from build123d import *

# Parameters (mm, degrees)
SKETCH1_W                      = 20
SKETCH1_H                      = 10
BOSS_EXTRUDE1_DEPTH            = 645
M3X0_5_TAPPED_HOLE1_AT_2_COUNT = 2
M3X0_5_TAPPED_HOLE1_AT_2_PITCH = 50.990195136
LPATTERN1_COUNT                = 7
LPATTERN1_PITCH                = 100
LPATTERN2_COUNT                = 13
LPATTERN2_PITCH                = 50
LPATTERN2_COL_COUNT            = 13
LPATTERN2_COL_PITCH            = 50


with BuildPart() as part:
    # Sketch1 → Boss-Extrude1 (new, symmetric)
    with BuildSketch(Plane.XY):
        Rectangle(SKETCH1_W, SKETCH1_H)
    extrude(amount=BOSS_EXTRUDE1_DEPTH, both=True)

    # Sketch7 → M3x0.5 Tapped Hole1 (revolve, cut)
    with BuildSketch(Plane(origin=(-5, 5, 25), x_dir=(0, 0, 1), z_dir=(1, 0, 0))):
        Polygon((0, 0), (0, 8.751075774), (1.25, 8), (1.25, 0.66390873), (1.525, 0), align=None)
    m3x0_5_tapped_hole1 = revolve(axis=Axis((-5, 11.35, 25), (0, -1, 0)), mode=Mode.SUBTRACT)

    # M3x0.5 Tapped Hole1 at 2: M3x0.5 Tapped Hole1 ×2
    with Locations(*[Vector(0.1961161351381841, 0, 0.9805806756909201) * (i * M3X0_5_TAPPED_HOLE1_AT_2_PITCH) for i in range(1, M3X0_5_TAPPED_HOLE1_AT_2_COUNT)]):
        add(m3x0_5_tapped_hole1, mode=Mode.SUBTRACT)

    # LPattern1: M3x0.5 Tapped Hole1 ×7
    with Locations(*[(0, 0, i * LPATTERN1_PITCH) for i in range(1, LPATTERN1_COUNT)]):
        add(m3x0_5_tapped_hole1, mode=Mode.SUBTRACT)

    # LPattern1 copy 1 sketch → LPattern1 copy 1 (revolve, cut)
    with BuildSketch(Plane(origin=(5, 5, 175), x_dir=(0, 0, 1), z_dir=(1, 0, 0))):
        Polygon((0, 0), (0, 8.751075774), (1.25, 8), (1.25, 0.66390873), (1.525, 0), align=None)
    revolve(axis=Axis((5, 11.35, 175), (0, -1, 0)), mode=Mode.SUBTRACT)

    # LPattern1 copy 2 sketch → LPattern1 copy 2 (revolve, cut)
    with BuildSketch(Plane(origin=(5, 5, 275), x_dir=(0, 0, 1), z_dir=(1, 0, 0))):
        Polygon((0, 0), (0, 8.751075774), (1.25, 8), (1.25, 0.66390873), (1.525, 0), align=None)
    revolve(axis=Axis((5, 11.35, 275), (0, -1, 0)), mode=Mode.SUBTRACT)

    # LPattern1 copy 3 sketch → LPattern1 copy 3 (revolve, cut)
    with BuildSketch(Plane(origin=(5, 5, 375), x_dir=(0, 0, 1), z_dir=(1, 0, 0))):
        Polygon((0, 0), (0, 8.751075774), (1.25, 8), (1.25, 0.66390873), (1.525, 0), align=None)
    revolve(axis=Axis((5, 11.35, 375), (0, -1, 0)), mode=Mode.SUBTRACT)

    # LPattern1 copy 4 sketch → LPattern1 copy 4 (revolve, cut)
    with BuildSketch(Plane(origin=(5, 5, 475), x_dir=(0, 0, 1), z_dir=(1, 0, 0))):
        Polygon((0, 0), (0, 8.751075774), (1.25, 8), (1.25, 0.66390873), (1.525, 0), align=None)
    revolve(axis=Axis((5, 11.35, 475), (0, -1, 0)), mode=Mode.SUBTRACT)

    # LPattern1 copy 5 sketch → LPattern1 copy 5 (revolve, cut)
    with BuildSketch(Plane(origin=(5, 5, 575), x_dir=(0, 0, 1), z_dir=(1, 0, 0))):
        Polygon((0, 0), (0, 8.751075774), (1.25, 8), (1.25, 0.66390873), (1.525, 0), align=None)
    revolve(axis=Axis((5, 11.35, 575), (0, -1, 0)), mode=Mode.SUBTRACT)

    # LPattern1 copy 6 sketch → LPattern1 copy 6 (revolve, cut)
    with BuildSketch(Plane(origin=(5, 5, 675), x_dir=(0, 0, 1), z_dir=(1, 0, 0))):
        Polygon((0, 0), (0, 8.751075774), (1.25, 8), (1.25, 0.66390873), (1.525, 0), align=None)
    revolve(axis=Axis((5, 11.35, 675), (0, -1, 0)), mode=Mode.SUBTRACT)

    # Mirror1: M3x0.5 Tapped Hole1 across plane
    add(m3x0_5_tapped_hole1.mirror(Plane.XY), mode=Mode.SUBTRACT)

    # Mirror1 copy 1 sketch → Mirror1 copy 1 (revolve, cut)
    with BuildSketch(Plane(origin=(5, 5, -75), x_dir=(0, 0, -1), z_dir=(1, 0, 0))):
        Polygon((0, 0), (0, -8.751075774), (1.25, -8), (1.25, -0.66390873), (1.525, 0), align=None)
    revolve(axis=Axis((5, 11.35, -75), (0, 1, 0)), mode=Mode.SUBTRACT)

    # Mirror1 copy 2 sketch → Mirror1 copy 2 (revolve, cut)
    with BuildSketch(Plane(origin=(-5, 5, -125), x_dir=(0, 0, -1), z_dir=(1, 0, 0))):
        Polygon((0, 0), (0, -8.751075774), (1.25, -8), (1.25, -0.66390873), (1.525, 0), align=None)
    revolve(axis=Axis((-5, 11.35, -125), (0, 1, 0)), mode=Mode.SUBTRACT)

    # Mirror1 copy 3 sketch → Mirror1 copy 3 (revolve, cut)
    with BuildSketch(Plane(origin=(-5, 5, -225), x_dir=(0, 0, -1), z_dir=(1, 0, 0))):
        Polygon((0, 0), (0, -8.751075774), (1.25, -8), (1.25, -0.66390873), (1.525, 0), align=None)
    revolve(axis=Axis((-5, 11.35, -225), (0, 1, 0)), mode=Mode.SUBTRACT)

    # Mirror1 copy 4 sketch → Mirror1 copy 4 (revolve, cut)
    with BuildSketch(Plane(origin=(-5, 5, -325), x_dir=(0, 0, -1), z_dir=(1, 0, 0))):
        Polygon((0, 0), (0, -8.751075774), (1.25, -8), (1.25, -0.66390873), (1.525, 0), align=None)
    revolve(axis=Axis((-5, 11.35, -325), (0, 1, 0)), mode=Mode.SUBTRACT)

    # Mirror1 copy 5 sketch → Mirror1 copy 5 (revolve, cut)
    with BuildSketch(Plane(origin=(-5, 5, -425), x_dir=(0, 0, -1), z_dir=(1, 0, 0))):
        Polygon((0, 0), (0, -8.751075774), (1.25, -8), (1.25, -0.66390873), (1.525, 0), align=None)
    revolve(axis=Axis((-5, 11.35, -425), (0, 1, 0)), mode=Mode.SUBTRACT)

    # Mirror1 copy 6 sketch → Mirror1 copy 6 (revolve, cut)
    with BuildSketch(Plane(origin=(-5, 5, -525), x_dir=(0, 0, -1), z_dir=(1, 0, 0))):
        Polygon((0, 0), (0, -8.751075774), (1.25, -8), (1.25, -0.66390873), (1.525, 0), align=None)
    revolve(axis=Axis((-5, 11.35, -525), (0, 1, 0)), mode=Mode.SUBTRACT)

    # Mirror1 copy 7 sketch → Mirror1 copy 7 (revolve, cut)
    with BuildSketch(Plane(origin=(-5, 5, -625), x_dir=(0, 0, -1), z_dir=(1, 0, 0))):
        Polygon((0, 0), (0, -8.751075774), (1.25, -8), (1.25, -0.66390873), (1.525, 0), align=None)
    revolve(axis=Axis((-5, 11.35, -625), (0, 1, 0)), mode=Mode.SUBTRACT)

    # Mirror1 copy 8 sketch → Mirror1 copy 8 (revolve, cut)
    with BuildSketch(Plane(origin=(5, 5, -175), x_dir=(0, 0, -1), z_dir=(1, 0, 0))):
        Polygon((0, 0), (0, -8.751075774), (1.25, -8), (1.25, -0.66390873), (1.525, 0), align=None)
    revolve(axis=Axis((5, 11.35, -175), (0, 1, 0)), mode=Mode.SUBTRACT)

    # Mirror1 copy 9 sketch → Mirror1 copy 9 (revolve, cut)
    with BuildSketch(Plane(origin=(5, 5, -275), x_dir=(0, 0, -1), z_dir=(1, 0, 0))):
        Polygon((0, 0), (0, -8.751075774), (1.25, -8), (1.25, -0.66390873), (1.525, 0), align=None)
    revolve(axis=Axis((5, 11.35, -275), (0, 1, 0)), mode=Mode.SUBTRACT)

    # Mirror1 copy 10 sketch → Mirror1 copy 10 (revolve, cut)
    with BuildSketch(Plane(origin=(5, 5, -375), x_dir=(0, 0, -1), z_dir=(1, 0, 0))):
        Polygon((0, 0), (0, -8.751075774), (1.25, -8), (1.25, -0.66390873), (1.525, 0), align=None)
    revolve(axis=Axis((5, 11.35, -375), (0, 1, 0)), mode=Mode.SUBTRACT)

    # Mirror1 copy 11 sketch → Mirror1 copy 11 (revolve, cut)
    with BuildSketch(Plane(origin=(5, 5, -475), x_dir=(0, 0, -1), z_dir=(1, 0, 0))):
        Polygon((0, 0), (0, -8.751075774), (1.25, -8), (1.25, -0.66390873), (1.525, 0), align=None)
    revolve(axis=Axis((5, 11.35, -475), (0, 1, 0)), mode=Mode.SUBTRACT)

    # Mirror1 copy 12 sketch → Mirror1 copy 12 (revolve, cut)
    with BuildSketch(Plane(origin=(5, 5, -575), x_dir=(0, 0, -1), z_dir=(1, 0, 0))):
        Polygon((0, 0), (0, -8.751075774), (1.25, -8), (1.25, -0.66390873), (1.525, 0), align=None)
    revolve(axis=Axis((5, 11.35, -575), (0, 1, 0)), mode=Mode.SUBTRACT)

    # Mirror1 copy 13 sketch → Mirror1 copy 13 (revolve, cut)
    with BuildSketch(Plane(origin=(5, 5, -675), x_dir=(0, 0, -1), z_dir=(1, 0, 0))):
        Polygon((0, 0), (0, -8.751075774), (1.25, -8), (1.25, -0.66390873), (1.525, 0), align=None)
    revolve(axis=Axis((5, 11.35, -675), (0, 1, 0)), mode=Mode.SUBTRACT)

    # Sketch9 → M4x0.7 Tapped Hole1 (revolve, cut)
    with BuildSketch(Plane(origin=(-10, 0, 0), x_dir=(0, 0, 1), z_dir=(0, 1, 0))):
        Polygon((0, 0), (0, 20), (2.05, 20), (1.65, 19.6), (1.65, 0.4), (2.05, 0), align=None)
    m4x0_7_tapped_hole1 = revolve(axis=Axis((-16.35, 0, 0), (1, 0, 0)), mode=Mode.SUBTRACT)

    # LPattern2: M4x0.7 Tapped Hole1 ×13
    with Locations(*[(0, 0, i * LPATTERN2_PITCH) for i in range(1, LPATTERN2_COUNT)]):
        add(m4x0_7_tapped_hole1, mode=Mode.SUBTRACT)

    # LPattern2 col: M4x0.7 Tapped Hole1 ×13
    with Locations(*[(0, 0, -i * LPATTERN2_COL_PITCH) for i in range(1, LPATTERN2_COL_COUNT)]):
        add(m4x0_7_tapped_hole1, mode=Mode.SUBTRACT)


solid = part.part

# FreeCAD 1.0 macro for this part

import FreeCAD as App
import Part
import Sketcher
Q = App.Units.Quantity

doc = App.newDocument("Part")
params = doc.addObject("Spreadsheet::Sheet", "Params")
for row, (alias, value) in enumerate([
    ("sketch1_width", "20 mm"),
    ("sketch1_height", "10 mm"),
    ("pad1_length", "1290 mm"),
    ("groove_angle", "360 deg"),
    ("linearpattern_pitch", "50.990195 mm"),
    ("linearpattern2_pitch", "100 mm"),
    ("groove2_angle", "360 deg"),
    ("groove3_angle", "360 deg"),
    ("groove4_angle", "360 deg"),
    ("groove5_angle", "360 deg"),
    ("groove6_angle", "360 deg"),
    ("groove7_angle", "360 deg"),
    ("groove8_angle", "360 deg"),
    ("groove9_angle", "360 deg"),
    ("groove10_angle", "360 deg"),
    ("groove11_angle", "360 deg"),
    ("groove12_angle", "360 deg"),
    ("groove13_angle", "360 deg"),
    ("groove14_angle", "360 deg"),
    ("groove15_angle", "360 deg"),
    ("groove16_angle", "360 deg"),
    ("groove17_angle", "360 deg"),
    ("groove18_angle", "360 deg"),
    ("groove19_angle", "360 deg"),
    ("groove20_angle", "360 deg"),
    ("sketch22_width", "20 mm"),
    ("sketch22_width2", "19.2 mm"),
    ("sketch22_height", "2.05 mm"),
    ("groove21_angle", "360 deg"),
    ("linearpattern3_pitch", "50 mm"),
    ("linearpattern4_pitch", "50 mm"),
], start=1):
    params.set(f"A{row}", alias)
    params.set(f"B{row}", "=" + value)
    params.setAlias(f"B{row}", alias)

body = doc.addObject("PartDesign::Body", "Body")

sketch1 = body.newObject("Sketcher::SketchObject", "Sketch")
sketch1.AttachmentSupport = (doc.getObject("XY_Plane"), [""])
sketch1.MapMode = "FlatFace"
sketch1.addGeometry([
    Part.LineSegment(App.Vector(-10, 5, 0), App.Vector(-10, -5, 0)),
    Part.LineSegment(App.Vector(-10, -5, 0), App.Vector(10, -5, 0)),
    Part.LineSegment(App.Vector(10, -5, 0), App.Vector(10, 5, 0)),
    Part.LineSegment(App.Vector(10, 5, 0), App.Vector(-10, 5, 0)),
], False)
sketch1.addConstraint([
    Sketcher.Constraint("Coincident", 0, 2, 1, 1),
    Sketcher.Constraint("Coincident", 1, 2, 2, 1),
    Sketcher.Constraint("Coincident", 2, 2, 3, 1),
    Sketcher.Constraint("Coincident", 3, 2, 0, 1),
    Sketcher.Constraint("Vertical", 0),
    Sketcher.Constraint("Horizontal", 1),
    Sketcher.Constraint("Vertical", 2),
    Sketcher.Constraint("Horizontal", 3),
    Sketcher.Constraint("Symmetric", 0, 2, 2, 2, -1, 1),
    Sketcher.Constraint("DistanceX", 1, 1, 1, 2, Q("20 mm")),
    Sketcher.Constraint("DistanceY", 0, 2, 0, 1, Q("10 mm")),
])
sketch1.setExpression("Constraints[9]", "Params.sketch1_width")
sketch1.setExpression("Constraints[10]", "Params.sketch1_height")
pad1 = body.newObject("PartDesign::Pad", "Pad")
pad1.Profile = sketch1
pad1.setExpression("Length", "Params.pad1_length")
pad1.Midplane = True

sketch2 = body.newObject("Sketcher::SketchObject", "Sketch001")
sketch2.AttachmentSupport = (doc.getObject("YZ_Plane"), [""])
sketch2.MapMode = "FlatFace"
sketch2.AttachmentOffset = App.Placement(App.Vector(0, 0, -5), App.Rotation())
sketch2.addGeometry([
    Part.LineSegment(App.Vector(-3.8, 25, 0), App.Vector(5, 25, 0)),
    Part.LineSegment(App.Vector(5, 25, 0), App.Vector(5, 26.5, 0)),
    Part.LineSegment(App.Vector(5, 26.5, 0), App.Vector(4.3, 26.2, 0)),
    Part.LineSegment(App.Vector(4.3, 26.2, 0), App.Vector(-3, 26.2, 0)),
    Part.LineSegment(App.Vector(-3, 26.2, 0), App.Vector(-3.8, 25, 0)),
], False)
sketch2.addGeometry(Part.LineSegment(App.Vector(5, 25, 0), App.Vector(-3.8, 25, 0)), True)
sketch2.addConstraint([
    Sketcher.Constraint("Coincident", 0, 2, 1, 1),
    Sketcher.Constraint("Coincident", 1, 2, 2, 1),
    Sketcher.Constraint("Coincident", 2, 2, 3, 1),
    Sketcher.Constraint("Coincident", 3, 2, 4, 1),
    Sketcher.Constraint("Coincident", 4, 2, 0, 1),
    Sketcher.Constraint("Horizontal", 0),
    Sketcher.Constraint("Vertical", 1),
    Sketcher.Constraint("Horizontal", 3),
    Sketcher.Constraint("Horizontal", 5),
    Sketcher.Constraint("Coincident", 5, 1, 0, 2),
    Sketcher.Constraint("Equal", 0, 5),
    Sketcher.Constraint("Angle", 4, Q("-121 deg")),
    Sketcher.Constraint("DistanceX", -1, 1, 0, 2, Q("5 mm")),
    Sketcher.Constraint("DistanceY", -1, 1, 0, 2, Q("25 mm")),
    Sketcher.Constraint("DistanceX", 3, 2, -1, 1, Q("3 mm")),
    Sketcher.Constraint("Angle", 2, Q("-157.5 deg")),
    Sketcher.Constraint("DistanceY", 1, 1, 1, 2, Q("1.525 mm")),
    Sketcher.Constraint("DistanceY", -1, 1, 2, 2, Q("26.25 mm")),
])
groove = body.newObject("PartDesign::Groove", "Groove")
groove.Profile = sketch2
groove.ReferenceAxis = (sketch2, ["Axis0"])
groove.setExpression("Angle", "Params.groove_angle")
doc.recompute()

datumline = body.newObject("PartDesign::Line", "DatumLine")
datumline.Placement = App.Placement(App.Vector(0, 0, 0), App.Rotation(App.Vector(0, 0, 1), App.Vector(0.196116135, 0, 0.980580676)))
linearpattern = body.newObject("PartDesign::LinearPattern", "LinearPattern")
linearpattern.Originals = [groove]
linearpattern.Direction = (datumline, [""])
linearpattern.Mode = "offset"
linearpattern.setExpression("Offset", "Params.linearpattern_pitch")
linearpattern.Occurrences = 2
body.Tip = linearpattern
doc.recompute()

linearpattern2 = body.newObject("PartDesign::LinearPattern", "LinearPattern001")
linearpattern2.Originals = [groove]
linearpattern2.Direction = (doc.getObject("Z_Axis"), [""])
linearpattern2.Mode = "offset"
linearpattern2.setExpression("Offset", "Params.linearpattern2_pitch")
linearpattern2.Occurrences = 7
body.Tip = linearpattern2

sketch3 = body.newObject("Sketcher::SketchObject", "Sketch002")
sketch3.AttachmentSupport = (doc.getObject("YZ_Plane"), [""])
sketch3.MapMode = "FlatFace"
sketch3.AttachmentOffset = App.Placement(App.Vector(0, 0, 5), App.Rotation())
sketch3.addGeometry([
    Part.LineSegment(App.Vector(-3.8, 175, 0), App.Vector(5, 175, 0)),
    Part.LineSegment(App.Vector(5, 175, 0), App.Vector(5, 176.5, 0)),
    Part.LineSegment(App.Vector(5, 176.5, 0), App.Vector(4.3, 176.2, 0)),
    Part.LineSegment(App.Vector(4.3, 176.2, 0), App.Vector(-3, 176.2, 0)),
    Part.LineSegment(App.Vector(-3, 176.2, 0), App.Vector(-3.8, 175, 0)),
], False)
sketch3.addGeometry(Part.LineSegment(App.Vector(5, 175, 0), App.Vector(-3.8, 175, 0)), True)
sketch3.addConstraint([
    Sketcher.Constraint("Coincident", 0, 2, 1, 1),
    Sketcher.Constraint("Coincident", 1, 2, 2, 1),
    Sketcher.Constraint("Coincident", 2, 2, 3, 1),
    Sketcher.Constraint("Coincident", 3, 2, 4, 1),
    Sketcher.Constraint("Coincident", 4, 2, 0, 1),
    Sketcher.Constraint("Horizontal", 0),
    Sketcher.Constraint("Vertical", 1),
    Sketcher.Constraint("Horizontal", 3),
    Sketcher.Constraint("Horizontal", 5),
    Sketcher.Constraint("Coincident", 5, 1, 0, 2),
    Sketcher.Constraint("Equal", 0, 5),
    Sketcher.Constraint("Angle", 4, Q("-121 deg")),
    Sketcher.Constraint("DistanceX", -1, 1, 0, 2, Q("5 mm")),
    Sketcher.Constraint("DistanceY", -1, 1, 0, 2, Q("175 mm")),
    Sketcher.Constraint("DistanceX", 3, 2, -1, 1, Q("3 mm")),
    Sketcher.Constraint("Angle", 2, Q("-157.5 deg")),
    Sketcher.Constraint("DistanceY", 1, 1, 1, 2, Q("1.525 mm")),
    Sketcher.Constraint("DistanceY", -1, 1, 2, 2, Q("176.25 mm")),
])
groove2 = body.newObject("PartDesign::Groove", "Groove001")
groove2.Profile = sketch3
groove2.ReferenceAxis = (sketch3, ["Axis0"])
groove2.setExpression("Angle", "Params.groove2_angle")

sketch4 = body.newObject("Sketcher::SketchObject", "Sketch003")
sketch4.AttachmentSupport = (doc.getObject("YZ_Plane"), [""])
sketch4.MapMode = "FlatFace"
sketch4.AttachmentOffset = App.Placement(App.Vector(0, 0, 5), App.Rotation())
sketch4.addGeometry([
    Part.LineSegment(App.Vector(-3.8, 275, 0), App.Vector(5, 275, 0)),
    Part.LineSegment(App.Vector(5, 275, 0), App.Vector(5, 276.5, 0)),
    Part.LineSegment(App.Vector(5, 276.5, 0), App.Vector(4.3, 276.2, 0)),
    Part.LineSegment(App.Vector(4.3, 276.2, 0), App.Vector(-3, 276.2, 0)),
    Part.LineSegment(App.Vector(-3, 276.2, 0), App.Vector(-3.8, 275, 0)),
], False)
sketch4.addGeometry(Part.LineSegment(App.Vector(5, 275, 0), App.Vector(-3.8, 275, 0)), True)
sketch4.addConstraint([
    Sketcher.Constraint("Coincident", 0, 2, 1, 1),
    Sketcher.Constraint("Coincident", 1, 2, 2, 1),
    Sketcher.Constraint("Coincident", 2, 2, 3, 1),
    Sketcher.Constraint("Coincident", 3, 2, 4, 1),
    Sketcher.Constraint("Coincident", 4, 2, 0, 1),
    Sketcher.Constraint("Horizontal", 0),
    Sketcher.Constraint("Vertical", 1),
    Sketcher.Constraint("Horizontal", 3),
    Sketcher.Constraint("Horizontal", 5),
    Sketcher.Constraint("Coincident", 5, 1, 0, 2),
    Sketcher.Constraint("Equal", 0, 5),
    Sketcher.Constraint("Angle", 4, Q("-121 deg")),
    Sketcher.Constraint("DistanceX", -1, 1, 0, 2, Q("5 mm")),
    Sketcher.Constraint("DistanceY", -1, 1, 0, 2, Q("275 mm")),
    Sketcher.Constraint("DistanceX", 3, 2, -1, 1, Q("3 mm")),
    Sketcher.Constraint("Angle", 2, Q("-157.5 deg")),
    Sketcher.Constraint("DistanceY", 1, 1, 1, 2, Q("1.525 mm")),
    Sketcher.Constraint("DistanceY", -1, 1, 2, 2, Q("276.25 mm")),
])
groove3 = body.newObject("PartDesign::Groove", "Groove002")
groove3.Profile = sketch4
groove3.ReferenceAxis = (sketch4, ["Axis0"])
groove3.setExpression("Angle", "Params.groove3_angle")

sketch5 = body.newObject("Sketcher::SketchObject", "Sketch004")
sketch5.AttachmentSupport = (doc.getObject("YZ_Plane"), [""])
sketch5.MapMode = "FlatFace"
sketch5.AttachmentOffset = App.Placement(App.Vector(0, 0, 5), App.Rotation())
sketch5.addGeometry([
    Part.LineSegment(App.Vector(-3.8, 375, 0), App.Vector(5, 375, 0)),
    Part.LineSegment(App.Vector(5, 375, 0), App.Vector(5, 376.5, 0)),
    Part.LineSegment(App.Vector(5, 376.5, 0), App.Vector(4.3, 376.2, 0)),
    Part.LineSegment(App.Vector(4.3, 376.2, 0), App.Vector(-3, 376.2, 0)),
    Part.LineSegment(App.Vector(-3, 376.2, 0), App.Vector(-3.8, 375, 0)),
], False)
sketch5.addGeometry(Part.LineSegment(App.Vector(5, 375, 0), App.Vector(-3.8, 375, 0)), True)
sketch5.addConstraint([
    Sketcher.Constraint("Coincident", 0, 2, 1, 1),
    Sketcher.Constraint("Coincident", 1, 2, 2, 1),
    Sketcher.Constraint("Coincident", 2, 2, 3, 1),
    Sketcher.Constraint("Coincident", 3, 2, 4, 1),
    Sketcher.Constraint("Coincident", 4, 2, 0, 1),
    Sketcher.Constraint("Horizontal", 0),
    Sketcher.Constraint("Vertical", 1),
    Sketcher.Constraint("Horizontal", 3),
    Sketcher.Constraint("Horizontal", 5),
    Sketcher.Constraint("Coincident", 5, 1, 0, 2),
    Sketcher.Constraint("Equal", 0, 5),
    Sketcher.Constraint("Angle", 4, Q("-121 deg")),
    Sketcher.Constraint("DistanceX", -1, 1, 0, 2, Q("5 mm")),
    Sketcher.Constraint("DistanceY", -1, 1, 0, 2, Q("375 mm")),
    Sketcher.Constraint("DistanceX", 3, 2, -1, 1, Q("3 mm")),
    Sketcher.Constraint("Angle", 2, Q("-157.5 deg")),
    Sketcher.Constraint("DistanceY", 1, 1, 1, 2, Q("1.525 mm")),
    Sketcher.Constraint("DistanceY", -1, 1, 2, 2, Q("376.25 mm")),
])
groove4 = body.newObject("PartDesign::Groove", "Groove003")
groove4.Profile = sketch5
groove4.ReferenceAxis = (sketch5, ["Axis0"])
groove4.setExpression("Angle", "Params.groove4_angle")

sketch6 = body.newObject("Sketcher::SketchObject", "Sketch005")
sketch6.AttachmentSupport = (doc.getObject("YZ_Plane"), [""])
sketch6.MapMode = "FlatFace"
sketch6.AttachmentOffset = App.Placement(App.Vector(0, 0, 5), App.Rotation())
sketch6.addGeometry([
    Part.LineSegment(App.Vector(-3.8, 475, 0), App.Vector(5, 475, 0)),
    Part.LineSegment(App.Vector(5, 475, 0), App.Vector(5, 476.5, 0)),
    Part.LineSegment(App.Vector(5, 476.5, 0), App.Vector(4.3, 476.2, 0)),
    Part.LineSegment(App.Vector(4.3, 476.2, 0), App.Vector(-3, 476.2, 0)),
    Part.LineSegment(App.Vector(-3, 476.2, 0), App.Vector(-3.8, 475, 0)),
], False)
sketch6.addGeometry(Part.LineSegment(App.Vector(5, 475, 0), App.Vector(-3.8, 475, 0)), True)
sketch6.addConstraint([
    Sketcher.Constraint("Coincident", 0, 2, 1, 1),
    Sketcher.Constraint("Coincident", 1, 2, 2, 1),
    Sketcher.Constraint("Coincident", 2, 2, 3, 1),
    Sketcher.Constraint("Coincident", 3, 2, 4, 1),
    Sketcher.Constraint("Coincident", 4, 2, 0, 1),
    Sketcher.Constraint("Horizontal", 0),
    Sketcher.Constraint("Vertical", 1),
    Sketcher.Constraint("Horizontal", 3),
    Sketcher.Constraint("Horizontal", 5),
    Sketcher.Constraint("Coincident", 5, 1, 0, 2),
    Sketcher.Constraint("Equal", 0, 5),
    Sketcher.Constraint("Angle", 4, Q("-121 deg")),
    Sketcher.Constraint("DistanceX", -1, 1, 0, 2, Q("5 mm")),
    Sketcher.Constraint("DistanceY", -1, 1, 0, 2, Q("475 mm")),
    Sketcher.Constraint("DistanceX", 3, 2, -1, 1, Q("3 mm")),
    Sketcher.Constraint("Angle", 2, Q("-157.5 deg")),
    Sketcher.Constraint("DistanceY", 1, 1, 1, 2, Q("1.525 mm")),
    Sketcher.Constraint("DistanceY", -1, 1, 2, 2, Q("476.25 mm")),
])
groove5 = body.newObject("PartDesign::Groove", "Groove004")
groove5.Profile = sketch6
groove5.ReferenceAxis = (sketch6, ["Axis0"])
groove5.setExpression("Angle", "Params.groove5_angle")

sketch7 = body.newObject("Sketcher::SketchObject", "Sketch006")
sketch7.AttachmentSupport = (doc.getObject("YZ_Plane"), [""])
sketch7.MapMode = "FlatFace"
sketch7.AttachmentOffset = App.Placement(App.Vector(0, 0, 5), App.Rotation())
sketch7.addGeometry([
    Part.LineSegment(App.Vector(-3.8, 575, 0), App.Vector(5, 575, 0)),
    Part.LineSegment(App.Vector(5, 575, 0), App.Vector(5, 576.5, 0)),
    Part.LineSegment(App.Vector(5, 576.5, 0), App.Vector(4.3, 576.2, 0)),
    Part.LineSegment(App.Vector(4.3, 576.2, 0), App.Vector(-3, 576.2, 0)),
    Part.LineSegment(App.Vector(-3, 576.2, 0), App.Vector(-3.8, 575, 0)),
], False)
sketch7.addGeometry(Part.LineSegment(App.Vector(5, 575, 0), App.Vector(-3.8, 575, 0)), True)
sketch7.addConstraint([
    Sketcher.Constraint("Coincident", 0, 2, 1, 1),
    Sketcher.Constraint("Coincident", 1, 2, 2, 1),
    Sketcher.Constraint("Coincident", 2, 2, 3, 1),
    Sketcher.Constraint("Coincident", 3, 2, 4, 1),
    Sketcher.Constraint("Coincident", 4, 2, 0, 1),
    Sketcher.Constraint("Horizontal", 0),
    Sketcher.Constraint("Vertical", 1),
    Sketcher.Constraint("Horizontal", 3),
    Sketcher.Constraint("Horizontal", 5),
    Sketcher.Constraint("Coincident", 5, 1, 0, 2),
    Sketcher.Constraint("Equal", 0, 5),
    Sketcher.Constraint("Angle", 4, Q("-121 deg")),
    Sketcher.Constraint("DistanceX", -1, 1, 0, 2, Q("5 mm")),
    Sketcher.Constraint("DistanceY", -1, 1, 0, 2, Q("575 mm")),
    Sketcher.Constraint("DistanceX", 3, 2, -1, 1, Q("3 mm")),
    Sketcher.Constraint("Angle", 2, Q("-157.5 deg")),
    Sketcher.Constraint("DistanceY", 1, 1, 1, 2, Q("1.525 mm")),
    Sketcher.Constraint("DistanceY", -1, 1, 2, 2, Q("576.25 mm")),
])
groove6 = body.newObject("PartDesign::Groove", "Groove005")
groove6.Profile = sketch7
groove6.ReferenceAxis = (sketch7, ["Axis0"])
groove6.setExpression("Angle", "Params.groove6_angle")

sketch8 = body.newObject("Sketcher::SketchObject", "Sketch007")
sketch8.AttachmentSupport = (doc.getObject("YZ_Plane"), [""])
sketch8.MapMode = "FlatFace"
sketch8.AttachmentOffset = App.Placement(App.Vector(0, 0, 5), App.Rotation())
sketch8.addGeometry([
    Part.LineSegment(App.Vector(-3.8, 675, 0), App.Vector(5, 675, 0)),
    Part.LineSegment(App.Vector(5, 675, 0), App.Vector(5, 676.5, 0)),
    Part.LineSegment(App.Vector(5, 676.5, 0), App.Vector(4.3, 676.2, 0)),
    Part.LineSegment(App.Vector(4.3, 676.2, 0), App.Vector(-3, 676.2, 0)),
    Part.LineSegment(App.Vector(-3, 676.2, 0), App.Vector(-3.8, 675, 0)),
], False)
sketch8.addGeometry(Part.LineSegment(App.Vector(5, 675, 0), App.Vector(-3.8, 675, 0)), True)
sketch8.addConstraint([
    Sketcher.Constraint("Coincident", 0, 2, 1, 1),
    Sketcher.Constraint("Coincident", 1, 2, 2, 1),
    Sketcher.Constraint("Coincident", 2, 2, 3, 1),
    Sketcher.Constraint("Coincident", 3, 2, 4, 1),
    Sketcher.Constraint("Coincident", 4, 2, 0, 1),
    Sketcher.Constraint("Horizontal", 0),
    Sketcher.Constraint("Vertical", 1),
    Sketcher.Constraint("Horizontal", 3),
    Sketcher.Constraint("Horizontal", 5),
    Sketcher.Constraint("Coincident", 5, 1, 0, 2),
    Sketcher.Constraint("Equal", 0, 5),
    Sketcher.Constraint("Angle", 4, Q("-121 deg")),
    Sketcher.Constraint("DistanceX", -1, 1, 0, 2, Q("5 mm")),
    Sketcher.Constraint("DistanceY", -1, 1, 0, 2, Q("675 mm")),
    Sketcher.Constraint("DistanceX", 3, 2, -1, 1, Q("3 mm")),
    Sketcher.Constraint("Angle", 2, Q("-157.5 deg")),
    Sketcher.Constraint("DistanceY", 1, 1, 1, 2, Q("1.525 mm")),
    Sketcher.Constraint("DistanceY", -1, 1, 2, 2, Q("676.25 mm")),
])
groove7 = body.newObject("PartDesign::Groove", "Groove006")
groove7.Profile = sketch8
groove7.ReferenceAxis = (sketch8, ["Axis0"])
groove7.setExpression("Angle", "Params.groove7_angle")
doc.recompute()

mirrored = body.newObject("PartDesign::Mirrored", "Mirrored")
mirrored.Originals = [groove]
mirrored.MirrorPlane = (doc.getObject("XY_Plane"), [""])
body.Tip = mirrored

sketch9 = body.newObject("Sketcher::SketchObject", "Sketch008")
sketch9.AttachmentSupport = (doc.getObject("YZ_Plane"), [""])
sketch9.MapMode = "FlatFace"
sketch9.AttachmentOffset = App.Placement(App.Vector(0, 0, 5), App.Rotation())
sketch9.addGeometry([
    Part.LineSegment(App.Vector(5, -75, 0), App.Vector(-3.8, -75, 0)),
    Part.LineSegment(App.Vector(-3.8, -75, 0), App.Vector(-3, -76.2, 0)),
    Part.LineSegment(App.Vector(-3, -76.2, 0), App.Vector(4.3, -76.2, 0)),
    Part.LineSegment(App.Vector(4.3, -76.2, 0), App.Vector(5, -76.5, 0)),
    Part.LineSegment(App.Vector(5, -76.5, 0), App.Vector(5, -75, 0)),
], False)
sketch9.addGeometry(Part.LineSegment(App.Vector(-3.8, -75, 0), App.Vector(5, -75, 0)), True)
sketch9.addConstraint([
    Sketcher.Constraint("Coincident", 0, 2, 1, 1),
    Sketcher.Constraint("Coincident", 1, 2, 2, 1),
    Sketcher.Constraint("Coincident", 2, 2, 3, 1),
    Sketcher.Constraint("Coincident", 3, 2, 4, 1),
    Sketcher.Constraint("Coincident", 4, 2, 0, 1),
    Sketcher.Constraint("Horizontal", 0),
    Sketcher.Constraint("Horizontal", 2),
    Sketcher.Constraint("Vertical", 4),
    Sketcher.Constraint("Horizontal", 5),
    Sketcher.Constraint("Coincident", 5, 1, 0, 2),
    Sketcher.Constraint("Vertical", 3, 2, 5, 2),
    Sketcher.Constraint("Angle", 1, Q("-59 deg")),
    Sketcher.Constraint("DistanceY", 0, 2, -1, 1, Q("75 mm")),
    Sketcher.Constraint("DistanceX", 1, 2, -1, 1, Q("3 mm")),
    Sketcher.Constraint("DistanceX", -1, 1, 3, 2, Q("5 mm")),
    Sketcher.Constraint("Angle", 3, Q("-22.5 deg")),
    Sketcher.Constraint("DistanceY", 4, 1, 4, 2, Q("1.525 mm")),
    Sketcher.Constraint("DistanceY", 1, 2, -1, 1, Q("76.25 mm")),
])
groove8 = body.newObject("PartDesign::Groove", "Groove007")
groove8.Profile = sketch9
groove8.ReferenceAxis = (sketch9, ["Axis0"])
groove8.setExpression("Angle", "Params.groove8_angle")

sketch10 = body.newObject("Sketcher::SketchObject", "Sketch009")
sketch10.AttachmentSupport = (doc.getObject("YZ_Plane"), [""])
sketch10.MapMode = "FlatFace"
sketch10.AttachmentOffset = App.Placement(App.Vector(0, 0, -5), App.Rotation())
sketch10.addGeometry([
    Part.LineSegment(App.Vector(5, -125, 0), App.Vector(-3.8, -125, 0)),
    Part.LineSegment(App.Vector(-3.8, -125, 0), App.Vector(-3, -126.2, 0)),
    Part.LineSegment(App.Vector(-3, -126.2, 0), App.Vector(4.3, -126.2, 0)),
    Part.LineSegment(App.Vector(4.3, -126.2, 0), App.Vector(5, -126.5, 0)),
    Part.LineSegment(App.Vector(5, -126.5, 0), App.Vector(5, -125, 0)),
], False)
sketch10.addGeometry(Part.LineSegment(App.Vector(-3.8, -125, 0), App.Vector(5, -125, 0)), True)
sketch10.addConstraint([
    Sketcher.Constraint("Coincident", 0, 2, 1, 1),
    Sketcher.Constraint("Coincident", 1, 2, 2, 1),
    Sketcher.Constraint("Coincident", 2, 2, 3, 1),
    Sketcher.Constraint("Coincident", 3, 2, 4, 1),
    Sketcher.Constraint("Coincident", 4, 2, 0, 1),
    Sketcher.Constraint("Horizontal", 0),
    Sketcher.Constraint("Horizontal", 2),
    Sketcher.Constraint("Vertical", 4),
    Sketcher.Constraint("Horizontal", 5),
    Sketcher.Constraint("Coincident", 5, 1, 0, 2),
    Sketcher.Constraint("Vertical", 3, 2, 5, 2),
    Sketcher.Constraint("Angle", 1, Q("-59 deg")),
    Sketcher.Constraint("DistanceY", 0, 2, -1, 1, Q("125 mm")),
    Sketcher.Constraint("DistanceX", 1, 2, -1, 1, Q("3 mm")),
    Sketcher.Constraint("DistanceX", -1, 1, 3, 2, Q("5 mm")),
    Sketcher.Constraint("Angle", 3, Q("-22.5 deg")),
    Sketcher.Constraint("DistanceY", 4, 1, 4, 2, Q("1.525 mm")),
    Sketcher.Constraint("DistanceY", 1, 2, -1, 1, Q("126.25 mm")),
])
groove9 = body.newObject("PartDesign::Groove", "Groove008")
groove9.Profile = sketch10
groove9.ReferenceAxis = (sketch10, ["Axis0"])
groove9.setExpression("Angle", "Params.groove9_angle")

sketch11 = body.newObject("Sketcher::SketchObject", "Sketch010")
sketch11.AttachmentSupport = (doc.getObject("YZ_Plane"), [""])
sketch11.MapMode = "FlatFace"
sketch11.AttachmentOffset = App.Placement(App.Vector(0, 0, -5), App.Rotation())
sketch11.addGeometry([
    Part.LineSegment(App.Vector(5, -225, 0), App.Vector(-3.8, -225, 0)),
    Part.LineSegment(App.Vector(-3.8, -225, 0), App.Vector(-3, -226.2, 0)),
    Part.LineSegment(App.Vector(-3, -226.2, 0), App.Vector(4.3, -226.2, 0)),
    Part.LineSegment(App.Vector(4.3, -226.2, 0), App.Vector(5, -226.5, 0)),
    Part.LineSegment(App.Vector(5, -226.5, 0), App.Vector(5, -225, 0)),
], False)
sketch11.addGeometry(Part.LineSegment(App.Vector(-3.8, -225, 0), App.Vector(5, -225, 0)), True)
sketch11.addConstraint([
    Sketcher.Constraint("Coincident", 0, 2, 1, 1),
    Sketcher.Constraint("Coincident", 1, 2, 2, 1),
    Sketcher.Constraint("Coincident", 2, 2, 3, 1),
    Sketcher.Constraint("Coincident", 3, 2, 4, 1),
    Sketcher.Constraint("Coincident", 4, 2, 0, 1),
    Sketcher.Constraint("Horizontal", 0),
    Sketcher.Constraint("Horizontal", 2),
    Sketcher.Constraint("Vertical", 4),
    Sketcher.Constraint("Horizontal", 5),
    Sketcher.Constraint("Coincident", 5, 1, 0, 2),
    Sketcher.Constraint("Vertical", 3, 2, 5, 2),
    Sketcher.Constraint("Angle", 1, Q("-59 deg")),
    Sketcher.Constraint("DistanceY", 0, 2, -1, 1, Q("225 mm")),
    Sketcher.Constraint("DistanceX", 1, 2, -1, 1, Q("3 mm")),
    Sketcher.Constraint("DistanceX", -1, 1, 3, 2, Q("5 mm")),
    Sketcher.Constraint("Angle", 3, Q("-22.5 deg")),
    Sketcher.Constraint("DistanceY", 4, 1, 4, 2, Q("1.525 mm")),
    Sketcher.Constraint("DistanceY", 1, 2, -1, 1, Q("226.25 mm")),
])
groove10 = body.newObject("PartDesign::Groove", "Groove009")
groove10.Profile = sketch11
groove10.ReferenceAxis = (sketch11, ["Axis0"])
groove10.setExpression("Angle", "Params.groove10_angle")

sketch12 = body.newObject("Sketcher::SketchObject", "Sketch011")
sketch12.AttachmentSupport = (doc.getObject("YZ_Plane"), [""])
sketch12.MapMode = "FlatFace"
sketch12.AttachmentOffset = App.Placement(App.Vector(0, 0, -5), App.Rotation())
sketch12.addGeometry([
    Part.LineSegment(App.Vector(5, -325, 0), App.Vector(-3.8, -325, 0)),
    Part.LineSegment(App.Vector(-3.8, -325, 0), App.Vector(-3, -326.2, 0)),
    Part.LineSegment(App.Vector(-3, -326.2, 0), App.Vector(4.3, -326.2, 0)),
    Part.LineSegment(App.Vector(4.3, -326.2, 0), App.Vector(5, -326.5, 0)),
    Part.LineSegment(App.Vector(5, -326.5, 0), App.Vector(5, -325, 0)),
], False)
sketch12.addGeometry(Part.LineSegment(App.Vector(-3.8, -325, 0), App.Vector(5, -325, 0)), True)
sketch12.addConstraint([
    Sketcher.Constraint("Coincident", 0, 2, 1, 1),
    Sketcher.Constraint("Coincident", 1, 2, 2, 1),
    Sketcher.Constraint("Coincident", 2, 2, 3, 1),
    Sketcher.Constraint("Coincident", 3, 2, 4, 1),
    Sketcher.Constraint("Coincident", 4, 2, 0, 1),
    Sketcher.Constraint("Horizontal", 0),
    Sketcher.Constraint("Horizontal", 2),
    Sketcher.Constraint("Vertical", 4),
    Sketcher.Constraint("Horizontal", 5),
    Sketcher.Constraint("Coincident", 5, 1, 0, 2),
    Sketcher.Constraint("Vertical", 3, 2, 5, 2),
    Sketcher.Constraint("Angle", 1, Q("-59 deg")),
    Sketcher.Constraint("DistanceY", 0, 2, -1, 1, Q("325 mm")),
    Sketcher.Constraint("DistanceX", 1, 2, -1, 1, Q("3 mm")),
    Sketcher.Constraint("DistanceX", -1, 1, 3, 2, Q("5 mm")),
    Sketcher.Constraint("Angle", 3, Q("-22.5 deg")),
    Sketcher.Constraint("DistanceY", 4, 1, 4, 2, Q("1.525 mm")),
    Sketcher.Constraint("DistanceY", 1, 2, -1, 1, Q("326.25 mm")),
])
groove11 = body.newObject("PartDesign::Groove", "Groove010")
groove11.Profile = sketch12
groove11.ReferenceAxis = (sketch12, ["Axis0"])
groove11.setExpression("Angle", "Params.groove11_angle")

sketch13 = body.newObject("Sketcher::SketchObject", "Sketch012")
sketch13.AttachmentSupport = (doc.getObject("YZ_Plane"), [""])
sketch13.MapMode = "FlatFace"
sketch13.AttachmentOffset = App.Placement(App.Vector(0, 0, -5), App.Rotation())
sketch13.addGeometry([
    Part.LineSegment(App.Vector(5, -425, 0), App.Vector(-3.8, -425, 0)),
    Part.LineSegment(App.Vector(-3.8, -425, 0), App.Vector(-3, -426.2, 0)),
    Part.LineSegment(App.Vector(-3, -426.2, 0), App.Vector(4.3, -426.2, 0)),
    Part.LineSegment(App.Vector(4.3, -426.2, 0), App.Vector(5, -426.5, 0)),
    Part.LineSegment(App.Vector(5, -426.5, 0), App.Vector(5, -425, 0)),
], False)
sketch13.addGeometry(Part.LineSegment(App.Vector(-3.8, -425, 0), App.Vector(5, -425, 0)), True)
sketch13.addConstraint([
    Sketcher.Constraint("Coincident", 0, 2, 1, 1),
    Sketcher.Constraint("Coincident", 1, 2, 2, 1),
    Sketcher.Constraint("Coincident", 2, 2, 3, 1),
    Sketcher.Constraint("Coincident", 3, 2, 4, 1),
    Sketcher.Constraint("Coincident", 4, 2, 0, 1),
    Sketcher.Constraint("Horizontal", 0),
    Sketcher.Constraint("Horizontal", 2),
    Sketcher.Constraint("Vertical", 4),
    Sketcher.Constraint("Horizontal", 5),
    Sketcher.Constraint("Coincident", 5, 1, 0, 2),
    Sketcher.Constraint("Vertical", 3, 2, 5, 2),
    Sketcher.Constraint("Angle", 1, Q("-59 deg")),
    Sketcher.Constraint("DistanceY", 0, 2, -1, 1, Q("425 mm")),
    Sketcher.Constraint("DistanceX", 1, 2, -1, 1, Q("3 mm")),
    Sketcher.Constraint("DistanceX", -1, 1, 3, 2, Q("5 mm")),
    Sketcher.Constraint("Angle", 3, Q("-22.5 deg")),
    Sketcher.Constraint("DistanceY", 4, 1, 4, 2, Q("1.525 mm")),
    Sketcher.Constraint("DistanceY", 1, 2, -1, 1, Q("426.25 mm")),
])
groove12 = body.newObject("PartDesign::Groove", "Groove011")
groove12.Profile = sketch13
groove12.ReferenceAxis = (sketch13, ["Axis0"])
groove12.setExpression("Angle", "Params.groove12_angle")

sketch14 = body.newObject("Sketcher::SketchObject", "Sketch013")
sketch14.AttachmentSupport = (doc.getObject("YZ_Plane"), [""])
sketch14.MapMode = "FlatFace"
sketch14.AttachmentOffset = App.Placement(App.Vector(0, 0, -5), App.Rotation())
sketch14.addGeometry([
    Part.LineSegment(App.Vector(5, -525, 0), App.Vector(-3.8, -525, 0)),
    Part.LineSegment(App.Vector(-3.8, -525, 0), App.Vector(-3, -526.2, 0)),
    Part.LineSegment(App.Vector(-3, -526.2, 0), App.Vector(4.3, -526.2, 0)),
    Part.LineSegment(App.Vector(4.3, -526.2, 0), App.Vector(5, -526.5, 0)),
    Part.LineSegment(App.Vector(5, -526.5, 0), App.Vector(5, -525, 0)),
], False)
sketch14.addGeometry(Part.LineSegment(App.Vector(-3.8, -525, 0), App.Vector(5, -525, 0)), True)
sketch14.addConstraint([
    Sketcher.Constraint("Coincident", 0, 2, 1, 1),
    Sketcher.Constraint("Coincident", 1, 2, 2, 1),
    Sketcher.Constraint("Coincident", 2, 2, 3, 1),
    Sketcher.Constraint("Coincident", 3, 2, 4, 1),
    Sketcher.Constraint("Coincident", 4, 2, 0, 1),
    Sketcher.Constraint("Horizontal", 0),
    Sketcher.Constraint("Horizontal", 2),
    Sketcher.Constraint("Vertical", 4),
    Sketcher.Constraint("Horizontal", 5),
    Sketcher.Constraint("Coincident", 5, 1, 0, 2),
    Sketcher.Constraint("Vertical", 3, 2, 5, 2),
    Sketcher.Constraint("Angle", 1, Q("-59 deg")),
    Sketcher.Constraint("DistanceY", 0, 2, -1, 1, Q("525 mm")),
    Sketcher.Constraint("DistanceX", 1, 2, -1, 1, Q("3 mm")),
    Sketcher.Constraint("DistanceX", -1, 1, 3, 2, Q("5 mm")),
    Sketcher.Constraint("Angle", 3, Q("-22.5 deg")),
    Sketcher.Constraint("DistanceY", 4, 1, 4, 2, Q("1.525 mm")),
    Sketcher.Constraint("DistanceY", 1, 2, -1, 1, Q("526.25 mm")),
])
groove13 = body.newObject("PartDesign::Groove", "Groove012")
groove13.Profile = sketch14
groove13.ReferenceAxis = (sketch14, ["Axis0"])
groove13.setExpression("Angle", "Params.groove13_angle")

sketch15 = body.newObject("Sketcher::SketchObject", "Sketch014")
sketch15.AttachmentSupport = (doc.getObject("YZ_Plane"), [""])
sketch15.MapMode = "FlatFace"
sketch15.AttachmentOffset = App.Placement(App.Vector(0, 0, -5), App.Rotation())
sketch15.addGeometry([
    Part.LineSegment(App.Vector(5, -625, 0), App.Vector(-3.8, -625, 0)),
    Part.LineSegment(App.Vector(-3.8, -625, 0), App.Vector(-3, -626.2, 0)),
    Part.LineSegment(App.Vector(-3, -626.2, 0), App.Vector(4.3, -626.2, 0)),
    Part.LineSegment(App.Vector(4.3, -626.2, 0), App.Vector(5, -626.5, 0)),
    Part.LineSegment(App.Vector(5, -626.5, 0), App.Vector(5, -625, 0)),
], False)
sketch15.addGeometry(Part.LineSegment(App.Vector(-3.8, -625, 0), App.Vector(5, -625, 0)), True)
sketch15.addConstraint([
    Sketcher.Constraint("Coincident", 0, 2, 1, 1),
    Sketcher.Constraint("Coincident", 1, 2, 2, 1),
    Sketcher.Constraint("Coincident", 2, 2, 3, 1),
    Sketcher.Constraint("Coincident", 3, 2, 4, 1),
    Sketcher.Constraint("Coincident", 4, 2, 0, 1),
    Sketcher.Constraint("Horizontal", 0),
    Sketcher.Constraint("Horizontal", 2),
    Sketcher.Constraint("Vertical", 4),
    Sketcher.Constraint("Horizontal", 5),
    Sketcher.Constraint("Coincident", 5, 1, 0, 2),
    Sketcher.Constraint("Vertical", 3, 2, 5, 2),
    Sketcher.Constraint("Angle", 1, Q("-59 deg")),
    Sketcher.Constraint("DistanceY", 0, 2, -1, 1, Q("625 mm")),
    Sketcher.Constraint("DistanceX", 1, 2, -1, 1, Q("3 mm")),
    Sketcher.Constraint("DistanceX", -1, 1, 3, 2, Q("5 mm")),
    Sketcher.Constraint("Angle", 3, Q("-22.5 deg")),
    Sketcher.Constraint("DistanceY", 4, 1, 4, 2, Q("1.525 mm")),
    Sketcher.Constraint("DistanceY", 1, 2, -1, 1, Q("626.25 mm")),
])
groove14 = body.newObject("PartDesign::Groove", "Groove013")
groove14.Profile = sketch15
groove14.ReferenceAxis = (sketch15, ["Axis0"])
groove14.setExpression("Angle", "Params.groove14_angle")

sketch16 = body.newObject("Sketcher::SketchObject", "Sketch015")
sketch16.AttachmentSupport = (doc.getObject("YZ_Plane"), [""])
sketch16.MapMode = "FlatFace"
sketch16.AttachmentOffset = App.Placement(App.Vector(0, 0, 5), App.Rotation())
sketch16.addGeometry([
    Part.LineSegment(App.Vector(5, -175, 0), App.Vector(-3.8, -175, 0)),
    Part.LineSegment(App.Vector(-3.8, -175, 0), App.Vector(-3, -176.2, 0)),
    Part.LineSegment(App.Vector(-3, -176.2, 0), App.Vector(4.3, -176.2, 0)),
    Part.LineSegment(App.Vector(4.3, -176.2, 0), App.Vector(5, -176.5, 0)),
    Part.LineSegment(App.Vector(5, -176.5, 0), App.Vector(5, -175, 0)),
], False)
sketch16.addGeometry(Part.LineSegment(App.Vector(-3.8, -175, 0), App.Vector(5, -175, 0)), True)
sketch16.addConstraint([
    Sketcher.Constraint("Coincident", 0, 2, 1, 1),
    Sketcher.Constraint("Coincident", 1, 2, 2, 1),
    Sketcher.Constraint("Coincident", 2, 2, 3, 1),
    Sketcher.Constraint("Coincident", 3, 2, 4, 1),
    Sketcher.Constraint("Coincident", 4, 2, 0, 1),
    Sketcher.Constraint("Horizontal", 0),
    Sketcher.Constraint("Horizontal", 2),
    Sketcher.Constraint("Vertical", 4),
    Sketcher.Constraint("Horizontal", 5),
    Sketcher.Constraint("Coincident", 5, 1, 0, 2),
    Sketcher.Constraint("Vertical", 3, 2, 5, 2),
    Sketcher.Constraint("Angle", 1, Q("-59 deg")),
    Sketcher.Constraint("DistanceY", 0, 2, -1, 1, Q("175 mm")),
    Sketcher.Constraint("DistanceX", 1, 2, -1, 1, Q("3 mm")),
    Sketcher.Constraint("DistanceX", -1, 1, 3, 2, Q("5 mm")),
    Sketcher.Constraint("Angle", 3, Q("-22.5 deg")),
    Sketcher.Constraint("DistanceY", 4, 1, 4, 2, Q("1.525 mm")),
    Sketcher.Constraint("DistanceY", 1, 2, -1, 1, Q("176.25 mm")),
])
groove15 = body.newObject("PartDesign::Groove", "Groove014")
groove15.Profile = sketch16
groove15.ReferenceAxis = (sketch16, ["Axis0"])
groove15.setExpression("Angle", "Params.groove15_angle")

sketch17 = body.newObject("Sketcher::SketchObject", "Sketch016")
sketch17.AttachmentSupport = (doc.getObject("YZ_Plane"), [""])
sketch17.MapMode = "FlatFace"
sketch17.AttachmentOffset = App.Placement(App.Vector(0, 0, 5), App.Rotation())
sketch17.addGeometry([
    Part.LineSegment(App.Vector(5, -275, 0), App.Vector(-3.8, -275, 0)),
    Part.LineSegment(App.Vector(-3.8, -275, 0), App.Vector(-3, -276.2, 0)),
    Part.LineSegment(App.Vector(-3, -276.2, 0), App.Vector(4.3, -276.2, 0)),
    Part.LineSegment(App.Vector(4.3, -276.2, 0), App.Vector(5, -276.5, 0)),
    Part.LineSegment(App.Vector(5, -276.5, 0), App.Vector(5, -275, 0)),
], False)
sketch17.addGeometry(Part.LineSegment(App.Vector(-3.8, -275, 0), App.Vector(5, -275, 0)), True)
sketch17.addConstraint([
    Sketcher.Constraint("Coincident", 0, 2, 1, 1),
    Sketcher.Constraint("Coincident", 1, 2, 2, 1),
    Sketcher.Constraint("Coincident", 2, 2, 3, 1),
    Sketcher.Constraint("Coincident", 3, 2, 4, 1),
    Sketcher.Constraint("Coincident", 4, 2, 0, 1),
    Sketcher.Constraint("Horizontal", 0),
    Sketcher.Constraint("Horizontal", 2),
    Sketcher.Constraint("Vertical", 4),
    Sketcher.Constraint("Horizontal", 5),
    Sketcher.Constraint("Coincident", 5, 1, 0, 2),
    Sketcher.Constraint("Vertical", 3, 2, 5, 2),
    Sketcher.Constraint("Angle", 1, Q("-59 deg")),
    Sketcher.Constraint("DistanceY", 0, 2, -1, 1, Q("275 mm")),
    Sketcher.Constraint("DistanceX", 1, 2, -1, 1, Q("3 mm")),
    Sketcher.Constraint("DistanceX", -1, 1, 3, 2, Q("5 mm")),
    Sketcher.Constraint("Angle", 3, Q("-22.5 deg")),
    Sketcher.Constraint("DistanceY", 4, 1, 4, 2, Q("1.525 mm")),
    Sketcher.Constraint("DistanceY", 1, 2, -1, 1, Q("276.25 mm")),
])
groove16 = body.newObject("PartDesign::Groove", "Groove015")
groove16.Profile = sketch17
groove16.ReferenceAxis = (sketch17, ["Axis0"])
groove16.setExpression("Angle", "Params.groove16_angle")

sketch18 = body.newObject("Sketcher::SketchObject", "Sketch017")
sketch18.AttachmentSupport = (doc.getObject("YZ_Plane"), [""])
sketch18.MapMode = "FlatFace"
sketch18.AttachmentOffset = App.Placement(App.Vector(0, 0, 5), App.Rotation())
sketch18.addGeometry([
    Part.LineSegment(App.Vector(5, -375, 0), App.Vector(-3.8, -375, 0)),
    Part.LineSegment(App.Vector(-3.8, -375, 0), App.Vector(-3, -376.2, 0)),
    Part.LineSegment(App.Vector(-3, -376.2, 0), App.Vector(4.3, -376.2, 0)),
    Part.LineSegment(App.Vector(4.3, -376.2, 0), App.Vector(5, -376.5, 0)),
    Part.LineSegment(App.Vector(5, -376.5, 0), App.Vector(5, -375, 0)),
], False)
sketch18.addGeometry(Part.LineSegment(App.Vector(-3.8, -375, 0), App.Vector(5, -375, 0)), True)
sketch18.addConstraint([
    Sketcher.Constraint("Coincident", 0, 2, 1, 1),
    Sketcher.Constraint("Coincident", 1, 2, 2, 1),
    Sketcher.Constraint("Coincident", 2, 2, 3, 1),
    Sketcher.Constraint("Coincident", 3, 2, 4, 1),
    Sketcher.Constraint("Coincident", 4, 2, 0, 1),
    Sketcher.Constraint("Horizontal", 0),
    Sketcher.Constraint("Horizontal", 2),
    Sketcher.Constraint("Vertical", 4),
    Sketcher.Constraint("Horizontal", 5),
    Sketcher.Constraint("Coincident", 5, 1, 0, 2),
    Sketcher.Constraint("Vertical", 3, 2, 5, 2),
    Sketcher.Constraint("Angle", 1, Q("-59 deg")),
    Sketcher.Constraint("DistanceY", 0, 2, -1, 1, Q("375 mm")),
    Sketcher.Constraint("DistanceX", 1, 2, -1, 1, Q("3 mm")),
    Sketcher.Constraint("DistanceX", -1, 1, 3, 2, Q("5 mm")),
    Sketcher.Constraint("Angle", 3, Q("-22.5 deg")),
    Sketcher.Constraint("DistanceY", 4, 1, 4, 2, Q("1.525 mm")),
    Sketcher.Constraint("DistanceY", 1, 2, -1, 1, Q("376.25 mm")),
])
groove17 = body.newObject("PartDesign::Groove", "Groove016")
groove17.Profile = sketch18
groove17.ReferenceAxis = (sketch18, ["Axis0"])
groove17.setExpression("Angle", "Params.groove17_angle")

sketch19 = body.newObject("Sketcher::SketchObject", "Sketch018")
sketch19.AttachmentSupport = (doc.getObject("YZ_Plane"), [""])
sketch19.MapMode = "FlatFace"
sketch19.AttachmentOffset = App.Placement(App.Vector(0, 0, 5), App.Rotation())
sketch19.addGeometry([
    Part.LineSegment(App.Vector(5, -475, 0), App.Vector(-3.8, -475, 0)),
    Part.LineSegment(App.Vector(-3.8, -475, 0), App.Vector(-3, -476.2, 0)),
    Part.LineSegment(App.Vector(-3, -476.2, 0), App.Vector(4.3, -476.2, 0)),
    Part.LineSegment(App.Vector(4.3, -476.2, 0), App.Vector(5, -476.5, 0)),
    Part.LineSegment(App.Vector(5, -476.5, 0), App.Vector(5, -475, 0)),
], False)
sketch19.addGeometry(Part.LineSegment(App.Vector(-3.8, -475, 0), App.Vector(5, -475, 0)), True)
sketch19.addConstraint([
    Sketcher.Constraint("Coincident", 0, 2, 1, 1),
    Sketcher.Constraint("Coincident", 1, 2, 2, 1),
    Sketcher.Constraint("Coincident", 2, 2, 3, 1),
    Sketcher.Constraint("Coincident", 3, 2, 4, 1),
    Sketcher.Constraint("Coincident", 4, 2, 0, 1),
    Sketcher.Constraint("Horizontal", 0),
    Sketcher.Constraint("Horizontal", 2),
    Sketcher.Constraint("Vertical", 4),
    Sketcher.Constraint("Horizontal", 5),
    Sketcher.Constraint("Coincident", 5, 1, 0, 2),
    Sketcher.Constraint("Vertical", 3, 2, 5, 2),
    Sketcher.Constraint("Angle", 1, Q("-59 deg")),
    Sketcher.Constraint("DistanceY", 0, 2, -1, 1, Q("475 mm")),
    Sketcher.Constraint("DistanceX", 1, 2, -1, 1, Q("3 mm")),
    Sketcher.Constraint("DistanceX", -1, 1, 3, 2, Q("5 mm")),
    Sketcher.Constraint("Angle", 3, Q("-22.5 deg")),
    Sketcher.Constraint("DistanceY", 4, 1, 4, 2, Q("1.525 mm")),
    Sketcher.Constraint("DistanceY", 1, 2, -1, 1, Q("476.25 mm")),
])
groove18 = body.newObject("PartDesign::Groove", "Groove017")
groove18.Profile = sketch19
groove18.ReferenceAxis = (sketch19, ["Axis0"])
groove18.setExpression("Angle", "Params.groove18_angle")

sketch20 = body.newObject("Sketcher::SketchObject", "Sketch019")
sketch20.AttachmentSupport = (doc.getObject("YZ_Plane"), [""])
sketch20.MapMode = "FlatFace"
sketch20.AttachmentOffset = App.Placement(App.Vector(0, 0, 5), App.Rotation())
sketch20.addGeometry([
    Part.LineSegment(App.Vector(5, -575, 0), App.Vector(-3.8, -575, 0)),
    Part.LineSegment(App.Vector(-3.8, -575, 0), App.Vector(-3, -576.2, 0)),
    Part.LineSegment(App.Vector(-3, -576.2, 0), App.Vector(4.3, -576.2, 0)),
    Part.LineSegment(App.Vector(4.3, -576.2, 0), App.Vector(5, -576.5, 0)),
    Part.LineSegment(App.Vector(5, -576.5, 0), App.Vector(5, -575, 0)),
], False)
sketch20.addGeometry(Part.LineSegment(App.Vector(-3.8, -575, 0), App.Vector(5, -575, 0)), True)
sketch20.addConstraint([
    Sketcher.Constraint("Coincident", 0, 2, 1, 1),
    Sketcher.Constraint("Coincident", 1, 2, 2, 1),
    Sketcher.Constraint("Coincident", 2, 2, 3, 1),
    Sketcher.Constraint("Coincident", 3, 2, 4, 1),
    Sketcher.Constraint("Coincident", 4, 2, 0, 1),
    Sketcher.Constraint("Horizontal", 0),
    Sketcher.Constraint("Horizontal", 2),
    Sketcher.Constraint("Vertical", 4),
    Sketcher.Constraint("Horizontal", 5),
    Sketcher.Constraint("Coincident", 5, 1, 0, 2),
    Sketcher.Constraint("Vertical", 3, 2, 5, 2),
    Sketcher.Constraint("Angle", 1, Q("-59 deg")),
    Sketcher.Constraint("DistanceY", 0, 2, -1, 1, Q("575 mm")),
    Sketcher.Constraint("DistanceX", 1, 2, -1, 1, Q("3 mm")),
    Sketcher.Constraint("DistanceX", -1, 1, 3, 2, Q("5 mm")),
    Sketcher.Constraint("Angle", 3, Q("-22.5 deg")),
    Sketcher.Constraint("DistanceY", 4, 1, 4, 2, Q("1.525 mm")),
    Sketcher.Constraint("DistanceY", 1, 2, -1, 1, Q("576.25 mm")),
])
groove19 = body.newObject("PartDesign::Groove", "Groove018")
groove19.Profile = sketch20
groove19.ReferenceAxis = (sketch20, ["Axis0"])
groove19.setExpression("Angle", "Params.groove19_angle")

sketch21 = body.newObject("Sketcher::SketchObject", "Sketch020")
sketch21.AttachmentSupport = (doc.getObject("YZ_Plane"), [""])
sketch21.MapMode = "FlatFace"
sketch21.AttachmentOffset = App.Placement(App.Vector(0, 0, 5), App.Rotation())
sketch21.addGeometry([
    Part.LineSegment(App.Vector(5, -675, 0), App.Vector(-3.8, -675, 0)),
    Part.LineSegment(App.Vector(-3.8, -675, 0), App.Vector(-3, -676.2, 0)),
    Part.LineSegment(App.Vector(-3, -676.2, 0), App.Vector(4.3, -676.2, 0)),
    Part.LineSegment(App.Vector(4.3, -676.2, 0), App.Vector(5, -676.5, 0)),
    Part.LineSegment(App.Vector(5, -676.5, 0), App.Vector(5, -675, 0)),
], False)
sketch21.addGeometry(Part.LineSegment(App.Vector(-3.8, -675, 0), App.Vector(5, -675, 0)), True)
sketch21.addConstraint([
    Sketcher.Constraint("Coincident", 0, 2, 1, 1),
    Sketcher.Constraint("Coincident", 1, 2, 2, 1),
    Sketcher.Constraint("Coincident", 2, 2, 3, 1),
    Sketcher.Constraint("Coincident", 3, 2, 4, 1),
    Sketcher.Constraint("Coincident", 4, 2, 0, 1),
    Sketcher.Constraint("Horizontal", 0),
    Sketcher.Constraint("Horizontal", 2),
    Sketcher.Constraint("Vertical", 4),
    Sketcher.Constraint("Horizontal", 5),
    Sketcher.Constraint("Coincident", 5, 1, 0, 2),
    Sketcher.Constraint("Vertical", 3, 2, 5, 2),
    Sketcher.Constraint("Angle", 1, Q("-59 deg")),
    Sketcher.Constraint("DistanceY", 0, 2, -1, 1, Q("675 mm")),
    Sketcher.Constraint("DistanceX", 1, 2, -1, 1, Q("3 mm")),
    Sketcher.Constraint("DistanceX", -1, 1, 3, 2, Q("5 mm")),
    Sketcher.Constraint("Angle", 3, Q("-22.5 deg")),
    Sketcher.Constraint("DistanceY", 4, 1, 4, 2, Q("1.525 mm")),
    Sketcher.Constraint("DistanceY", 1, 2, -1, 1, Q("676.25 mm")),
])
groove20 = body.newObject("PartDesign::Groove", "Groove019")
groove20.Profile = sketch21
groove20.ReferenceAxis = (sketch21, ["Axis0"])
groove20.setExpression("Angle", "Params.groove20_angle")

sketch22 = body.newObject("Sketcher::SketchObject", "Sketch021")
sketch22.AttachmentSupport = (doc.getObject("XZ_Plane"), [""])
sketch22.MapMode = "FlatFace"
sketch22.addGeometry([
    Part.LineSegment(App.Vector(10, 0, 0), App.Vector(-10, 0, 0)),
    Part.LineSegment(App.Vector(-10, 0, 0), App.Vector(-10, 2, 0)),
    Part.LineSegment(App.Vector(-10, 2, 0), App.Vector(-9.6, 1.6, 0)),
    Part.LineSegment(App.Vector(-9.6, 1.6, 0), App.Vector(9.6, 1.6, 0)),
    Part.LineSegment(App.Vector(9.6, 1.6, 0), App.Vector(10, 2, 0)),
    Part.LineSegment(App.Vector(10, 2, 0), App.Vector(10, 0, 0)),
], False)
sketch22.addConstraint([
    Sketcher.Constraint("Coincident", 0, 2, 1, 1),
    Sketcher.Constraint("Coincident", 1, 2, 2, 1),
    Sketcher.Constraint("Coincident", 2, 2, 3, 1),
    Sketcher.Constraint("Coincident", 3, 2, 4, 1),
    Sketcher.Constraint("Coincident", 4, 2, 5, 1),
    Sketcher.Constraint("Coincident", 5, 2, 0, 1),
    Sketcher.Constraint("Horizontal", 0),
    Sketcher.Constraint("Vertical", 1),
    Sketcher.Constraint("Horizontal", 3),
    Sketcher.Constraint("Vertical", 5),
    Sketcher.Constraint("Symmetric", 0, 2, 5, 2, -1, 1),
    Sketcher.Constraint("Perpendicular", 2, 4),
    Sketcher.Constraint("Horizontal", 1, 2, 4, 2),
    Sketcher.Constraint("Equal", 2, 4),
    Sketcher.Constraint("DistanceX", 0, 2, 0, 1, Q("20 mm")),
    Sketcher.Constraint("DistanceX", 3, 1, 3, 2, Q("19.2 mm")),
    Sketcher.Constraint("DistanceY", 1, 1, 1, 2, Q("2.05 mm")),
])
sketch22.setExpression("Constraints[14]", "Params.sketch22_width")
sketch22.setExpression("Constraints[15]", "Params.sketch22_width2")
sketch22.setExpression("Constraints[16]", "Params.sketch22_height")
groove21 = body.newObject("PartDesign::Groove", "Groove020")
groove21.Profile = sketch22
groove21.ReferenceAxis = (sketch22, ["H_Axis"])
groove21.setExpression("Angle", "Params.groove21_angle")
doc.recompute()

linearpattern3 = body.newObject("PartDesign::LinearPattern", "LinearPattern002")
linearpattern3.Originals = [groove21]
linearpattern3.Direction = (doc.getObject("Z_Axis"), [""])
linearpattern3.Mode = "offset"
linearpattern3.setExpression("Offset", "Params.linearpattern3_pitch")
linearpattern3.Occurrences = 13
body.Tip = linearpattern3
doc.recompute()

linearpattern4 = body.newObject("PartDesign::LinearPattern", "LinearPattern003")
linearpattern4.Originals = [groove21]
linearpattern4.Direction = (doc.getObject("Z_Axis"), [""])
linearpattern4.Mode = "offset"
linearpattern4.setExpression("Offset", "Params.linearpattern4_pitch")
linearpattern4.Occurrences = 13
linearpattern4.Reversed = True
body.Tip = linearpattern4

doc.recompute()
